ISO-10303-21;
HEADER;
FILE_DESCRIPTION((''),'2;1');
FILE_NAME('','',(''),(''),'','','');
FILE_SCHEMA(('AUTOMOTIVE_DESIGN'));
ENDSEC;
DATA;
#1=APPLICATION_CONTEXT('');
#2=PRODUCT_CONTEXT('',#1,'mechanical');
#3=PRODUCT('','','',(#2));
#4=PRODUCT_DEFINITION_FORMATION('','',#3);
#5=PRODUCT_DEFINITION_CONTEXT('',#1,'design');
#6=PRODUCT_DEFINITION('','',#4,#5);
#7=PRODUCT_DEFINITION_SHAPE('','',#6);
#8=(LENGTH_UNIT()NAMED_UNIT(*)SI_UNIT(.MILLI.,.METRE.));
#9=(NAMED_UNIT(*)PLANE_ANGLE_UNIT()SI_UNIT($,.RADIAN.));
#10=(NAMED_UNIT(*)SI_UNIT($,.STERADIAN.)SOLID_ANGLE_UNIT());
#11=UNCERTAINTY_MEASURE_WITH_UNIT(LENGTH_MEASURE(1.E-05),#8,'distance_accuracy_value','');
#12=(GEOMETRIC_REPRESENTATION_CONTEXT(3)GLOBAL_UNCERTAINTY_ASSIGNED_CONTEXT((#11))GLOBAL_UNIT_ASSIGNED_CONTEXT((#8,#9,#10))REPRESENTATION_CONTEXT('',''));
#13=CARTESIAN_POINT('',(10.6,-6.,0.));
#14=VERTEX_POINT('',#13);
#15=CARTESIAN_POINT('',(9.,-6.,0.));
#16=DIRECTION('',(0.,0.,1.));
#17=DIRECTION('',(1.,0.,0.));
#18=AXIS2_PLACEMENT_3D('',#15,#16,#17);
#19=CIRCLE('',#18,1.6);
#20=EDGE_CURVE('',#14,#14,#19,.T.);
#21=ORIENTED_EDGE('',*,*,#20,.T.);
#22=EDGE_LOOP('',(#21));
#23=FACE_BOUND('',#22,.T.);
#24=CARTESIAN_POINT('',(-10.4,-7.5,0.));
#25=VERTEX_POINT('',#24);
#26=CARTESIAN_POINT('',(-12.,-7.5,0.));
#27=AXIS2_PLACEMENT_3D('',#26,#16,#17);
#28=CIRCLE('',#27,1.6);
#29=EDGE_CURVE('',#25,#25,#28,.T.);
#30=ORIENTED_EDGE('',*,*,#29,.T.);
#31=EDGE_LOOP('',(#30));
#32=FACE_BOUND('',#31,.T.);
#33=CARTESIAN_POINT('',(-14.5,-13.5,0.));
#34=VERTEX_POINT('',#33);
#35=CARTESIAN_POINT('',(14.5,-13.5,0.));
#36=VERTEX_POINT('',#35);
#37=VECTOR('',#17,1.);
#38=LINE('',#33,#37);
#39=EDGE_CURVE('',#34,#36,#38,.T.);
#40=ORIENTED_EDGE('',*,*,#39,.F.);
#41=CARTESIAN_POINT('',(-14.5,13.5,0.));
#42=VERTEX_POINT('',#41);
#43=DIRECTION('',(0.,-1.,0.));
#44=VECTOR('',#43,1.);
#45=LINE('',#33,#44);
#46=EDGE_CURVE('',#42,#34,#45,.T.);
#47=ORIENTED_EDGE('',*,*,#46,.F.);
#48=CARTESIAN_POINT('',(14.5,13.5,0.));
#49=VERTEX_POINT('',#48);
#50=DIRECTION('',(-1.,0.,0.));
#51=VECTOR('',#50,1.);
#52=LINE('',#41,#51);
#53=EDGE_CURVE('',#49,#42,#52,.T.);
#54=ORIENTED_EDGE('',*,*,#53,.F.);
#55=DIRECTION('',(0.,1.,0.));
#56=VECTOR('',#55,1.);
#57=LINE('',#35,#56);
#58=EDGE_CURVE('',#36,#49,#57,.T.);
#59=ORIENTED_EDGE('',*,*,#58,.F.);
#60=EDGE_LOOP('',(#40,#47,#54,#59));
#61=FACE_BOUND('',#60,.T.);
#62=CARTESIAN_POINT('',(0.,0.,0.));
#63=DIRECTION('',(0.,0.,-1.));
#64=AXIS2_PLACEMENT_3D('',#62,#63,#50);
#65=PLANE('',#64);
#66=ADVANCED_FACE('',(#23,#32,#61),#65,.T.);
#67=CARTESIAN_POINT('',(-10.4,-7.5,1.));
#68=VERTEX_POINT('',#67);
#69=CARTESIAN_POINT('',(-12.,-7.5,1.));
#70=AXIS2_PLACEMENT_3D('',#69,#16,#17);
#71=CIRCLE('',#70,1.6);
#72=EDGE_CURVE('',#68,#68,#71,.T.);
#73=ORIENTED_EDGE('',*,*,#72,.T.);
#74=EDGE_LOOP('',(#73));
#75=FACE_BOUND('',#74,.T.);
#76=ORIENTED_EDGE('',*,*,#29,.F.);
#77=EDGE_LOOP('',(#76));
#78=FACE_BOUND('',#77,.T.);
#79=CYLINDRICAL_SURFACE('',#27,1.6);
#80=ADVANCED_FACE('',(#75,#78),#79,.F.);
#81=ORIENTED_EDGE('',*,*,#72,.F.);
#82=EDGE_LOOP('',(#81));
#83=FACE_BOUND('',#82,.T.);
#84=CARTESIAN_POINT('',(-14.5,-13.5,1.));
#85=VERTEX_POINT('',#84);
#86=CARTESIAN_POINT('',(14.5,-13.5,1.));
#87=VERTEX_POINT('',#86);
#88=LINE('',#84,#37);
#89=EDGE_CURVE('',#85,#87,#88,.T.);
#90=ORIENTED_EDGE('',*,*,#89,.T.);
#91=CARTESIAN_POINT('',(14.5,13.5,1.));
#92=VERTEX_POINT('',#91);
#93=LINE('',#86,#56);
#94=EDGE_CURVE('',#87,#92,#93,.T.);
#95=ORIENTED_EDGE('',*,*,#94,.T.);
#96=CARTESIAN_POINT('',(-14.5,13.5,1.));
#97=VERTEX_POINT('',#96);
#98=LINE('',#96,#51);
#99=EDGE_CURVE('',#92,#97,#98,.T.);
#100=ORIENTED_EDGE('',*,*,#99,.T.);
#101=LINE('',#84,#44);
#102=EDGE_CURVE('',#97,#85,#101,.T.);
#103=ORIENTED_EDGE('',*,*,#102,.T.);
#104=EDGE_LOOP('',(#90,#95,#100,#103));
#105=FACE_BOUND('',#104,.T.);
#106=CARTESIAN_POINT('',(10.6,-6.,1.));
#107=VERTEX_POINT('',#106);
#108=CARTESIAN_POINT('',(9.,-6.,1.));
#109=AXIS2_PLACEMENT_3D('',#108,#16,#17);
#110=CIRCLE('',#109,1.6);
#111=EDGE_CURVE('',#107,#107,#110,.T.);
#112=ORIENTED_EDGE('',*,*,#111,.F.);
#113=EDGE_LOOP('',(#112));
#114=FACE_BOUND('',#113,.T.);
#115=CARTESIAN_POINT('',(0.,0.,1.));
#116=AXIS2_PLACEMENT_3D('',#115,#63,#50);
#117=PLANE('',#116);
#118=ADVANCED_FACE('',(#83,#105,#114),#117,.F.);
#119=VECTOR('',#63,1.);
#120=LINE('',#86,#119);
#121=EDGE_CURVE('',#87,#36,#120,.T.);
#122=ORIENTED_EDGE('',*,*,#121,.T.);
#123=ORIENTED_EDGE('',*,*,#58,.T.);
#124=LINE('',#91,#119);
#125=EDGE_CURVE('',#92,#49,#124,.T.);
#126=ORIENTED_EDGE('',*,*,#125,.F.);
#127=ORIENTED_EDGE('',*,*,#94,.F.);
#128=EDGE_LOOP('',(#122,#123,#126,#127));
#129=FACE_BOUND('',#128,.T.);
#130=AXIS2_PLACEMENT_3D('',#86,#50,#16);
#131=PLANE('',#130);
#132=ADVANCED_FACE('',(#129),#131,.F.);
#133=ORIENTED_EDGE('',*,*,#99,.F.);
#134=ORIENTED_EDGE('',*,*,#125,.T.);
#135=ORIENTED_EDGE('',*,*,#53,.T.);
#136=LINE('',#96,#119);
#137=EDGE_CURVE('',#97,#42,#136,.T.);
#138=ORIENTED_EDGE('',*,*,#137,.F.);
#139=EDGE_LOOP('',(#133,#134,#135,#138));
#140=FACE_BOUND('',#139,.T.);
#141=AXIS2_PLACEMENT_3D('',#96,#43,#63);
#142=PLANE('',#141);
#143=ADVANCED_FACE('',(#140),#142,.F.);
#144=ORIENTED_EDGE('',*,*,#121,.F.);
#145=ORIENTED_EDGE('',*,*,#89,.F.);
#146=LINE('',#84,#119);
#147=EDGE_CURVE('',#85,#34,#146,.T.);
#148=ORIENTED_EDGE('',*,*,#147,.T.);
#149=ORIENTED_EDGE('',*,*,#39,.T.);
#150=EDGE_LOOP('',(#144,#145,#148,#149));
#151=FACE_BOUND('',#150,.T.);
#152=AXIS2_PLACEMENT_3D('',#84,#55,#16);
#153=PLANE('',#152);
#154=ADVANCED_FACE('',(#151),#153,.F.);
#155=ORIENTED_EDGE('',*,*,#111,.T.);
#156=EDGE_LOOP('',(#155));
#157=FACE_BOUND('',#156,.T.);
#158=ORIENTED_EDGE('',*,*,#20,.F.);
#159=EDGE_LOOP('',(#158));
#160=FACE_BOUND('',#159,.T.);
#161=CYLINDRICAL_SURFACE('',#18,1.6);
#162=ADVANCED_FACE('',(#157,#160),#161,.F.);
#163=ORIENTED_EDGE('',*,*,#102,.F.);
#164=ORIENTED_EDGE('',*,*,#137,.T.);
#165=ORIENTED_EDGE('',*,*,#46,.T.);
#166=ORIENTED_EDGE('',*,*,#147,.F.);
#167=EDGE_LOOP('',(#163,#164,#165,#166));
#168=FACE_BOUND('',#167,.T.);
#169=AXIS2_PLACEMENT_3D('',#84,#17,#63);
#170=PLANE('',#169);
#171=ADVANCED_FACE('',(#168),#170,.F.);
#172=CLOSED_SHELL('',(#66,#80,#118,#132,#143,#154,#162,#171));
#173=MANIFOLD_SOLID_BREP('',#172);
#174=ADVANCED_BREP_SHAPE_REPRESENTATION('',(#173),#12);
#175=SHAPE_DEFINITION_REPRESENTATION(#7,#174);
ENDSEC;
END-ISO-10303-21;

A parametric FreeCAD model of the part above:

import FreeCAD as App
import Part
import Sketcher

doc = App.newDocument("Part")
body = doc.addObject("PartDesign::Body", "Body")

# Sketch on XY plane
sketch1 = doc.addObject("Sketcher::SketchObject", "Sketch")
body.addObject(sketch1)
sketch1.AttachmentSupport = (doc.XY_Plane, [""])
sketch1.MapMode = "FlatFace"
sketch1.addGeometry(Part.LineSegment(App.Vector(-14, 14, 0), App.Vector(-14, -14, 0)), False)
sketch1.addGeometry(Part.LineSegment(App.Vector(-14, -14, 0), App.Vector(14, -14, 0)), False)
sketch1.addGeometry(Part.LineSegment(App.Vector(14, -14, 0), App.Vector(14, 14, 0)), False)
sketch1.addGeometry(Part.LineSegment(App.Vector(14, 14, 0), App.Vector(-14, 14, 0)), False)
sketch1.addConstraint(Sketcher.Constraint("Coincident", 0, 2, 1, 1))
sketch1.addConstraint(Sketcher.Constraint("Coincident", 1, 2, 2, 1))
sketch1.addConstraint(Sketcher.Constraint("Coincident", 2, 2, 3, 1))
sketch1.addConstraint(Sketcher.Constraint("Coincident", 3, 2, 0, 1))
sketch1.addConstraint(Sketcher.Constraint("Vertical", 0))
sketch1.addConstraint(Sketcher.Constraint("Horizontal", 1))
sketch1.addConstraint(Sketcher.Constraint("Vertical", 2))
sketch1.addConstraint(Sketcher.Constraint("Horizontal", 3))
sketch1.addConstraint(Sketcher.Constraint("Symmetric", 0, 2, 2, 2, -1, 1))
sketch1.addConstraint(Sketcher.Constraint("DistanceX", 1, 1, 1, 2, 29.0))
sketch1.addConstraint(Sketcher.Constraint("DistanceY", 0, 2, 0, 1, 27.0))
pad1 = doc.addObject("PartDesign::Pad", "Pad")
body.addObject(pad1)
pad1.Profile = sketch1
pad1.Length = 1

# Sketch on XY plane
sketch2 = doc.addObject("Sketcher::SketchObject", "Sketch001")
body.addObject(sketch2)
sketch2.AttachmentSupport = (doc.XY_Plane, [""])
sketch2.MapMode = "FlatFace"
sketch2.AttachmentOffset = App.Placement(App.Vector(0, 0, 1), App.Rotation())
sketch2.addGeometry(Part.Circle(App.Vector(9, -6, 0), App.Vector(0, 0, 1), 1.6), False)
sketch2.addGeometry(Part.Circle(App.Vector(-12, -7.5, 0), App.Vector(0, 0, 1), 1.6), False)
sketch2.addConstraint(Sketcher.Constraint("Equal", 0, 1))
sketch2.addConstraint(Sketcher.Constraint("Diameter", 0, 3.2))
sketch2.addConstraint(Sketcher.Constraint("DistanceX", -1, 1, 0, 3, 9.0))
sketch2.addConstraint(Sketcher.Constraint("DistanceY", 0, 3, -1, 1, 6.0))
sketch2.addConstraint(Sketcher.Constraint("DistanceX", 1, 3, -1, 1, 12.0))
sketch2.addConstraint(Sketcher.Constraint("DistanceY", 1, 3, -1, 1, 7.5))
pocket1 = doc.addObject("PartDesign::Pocket", "Pocket")
body.addObject(pocket1)
pocket1.Profile = sketch2
pocket1.Type = "ThroughAll"

doc.recompute()
